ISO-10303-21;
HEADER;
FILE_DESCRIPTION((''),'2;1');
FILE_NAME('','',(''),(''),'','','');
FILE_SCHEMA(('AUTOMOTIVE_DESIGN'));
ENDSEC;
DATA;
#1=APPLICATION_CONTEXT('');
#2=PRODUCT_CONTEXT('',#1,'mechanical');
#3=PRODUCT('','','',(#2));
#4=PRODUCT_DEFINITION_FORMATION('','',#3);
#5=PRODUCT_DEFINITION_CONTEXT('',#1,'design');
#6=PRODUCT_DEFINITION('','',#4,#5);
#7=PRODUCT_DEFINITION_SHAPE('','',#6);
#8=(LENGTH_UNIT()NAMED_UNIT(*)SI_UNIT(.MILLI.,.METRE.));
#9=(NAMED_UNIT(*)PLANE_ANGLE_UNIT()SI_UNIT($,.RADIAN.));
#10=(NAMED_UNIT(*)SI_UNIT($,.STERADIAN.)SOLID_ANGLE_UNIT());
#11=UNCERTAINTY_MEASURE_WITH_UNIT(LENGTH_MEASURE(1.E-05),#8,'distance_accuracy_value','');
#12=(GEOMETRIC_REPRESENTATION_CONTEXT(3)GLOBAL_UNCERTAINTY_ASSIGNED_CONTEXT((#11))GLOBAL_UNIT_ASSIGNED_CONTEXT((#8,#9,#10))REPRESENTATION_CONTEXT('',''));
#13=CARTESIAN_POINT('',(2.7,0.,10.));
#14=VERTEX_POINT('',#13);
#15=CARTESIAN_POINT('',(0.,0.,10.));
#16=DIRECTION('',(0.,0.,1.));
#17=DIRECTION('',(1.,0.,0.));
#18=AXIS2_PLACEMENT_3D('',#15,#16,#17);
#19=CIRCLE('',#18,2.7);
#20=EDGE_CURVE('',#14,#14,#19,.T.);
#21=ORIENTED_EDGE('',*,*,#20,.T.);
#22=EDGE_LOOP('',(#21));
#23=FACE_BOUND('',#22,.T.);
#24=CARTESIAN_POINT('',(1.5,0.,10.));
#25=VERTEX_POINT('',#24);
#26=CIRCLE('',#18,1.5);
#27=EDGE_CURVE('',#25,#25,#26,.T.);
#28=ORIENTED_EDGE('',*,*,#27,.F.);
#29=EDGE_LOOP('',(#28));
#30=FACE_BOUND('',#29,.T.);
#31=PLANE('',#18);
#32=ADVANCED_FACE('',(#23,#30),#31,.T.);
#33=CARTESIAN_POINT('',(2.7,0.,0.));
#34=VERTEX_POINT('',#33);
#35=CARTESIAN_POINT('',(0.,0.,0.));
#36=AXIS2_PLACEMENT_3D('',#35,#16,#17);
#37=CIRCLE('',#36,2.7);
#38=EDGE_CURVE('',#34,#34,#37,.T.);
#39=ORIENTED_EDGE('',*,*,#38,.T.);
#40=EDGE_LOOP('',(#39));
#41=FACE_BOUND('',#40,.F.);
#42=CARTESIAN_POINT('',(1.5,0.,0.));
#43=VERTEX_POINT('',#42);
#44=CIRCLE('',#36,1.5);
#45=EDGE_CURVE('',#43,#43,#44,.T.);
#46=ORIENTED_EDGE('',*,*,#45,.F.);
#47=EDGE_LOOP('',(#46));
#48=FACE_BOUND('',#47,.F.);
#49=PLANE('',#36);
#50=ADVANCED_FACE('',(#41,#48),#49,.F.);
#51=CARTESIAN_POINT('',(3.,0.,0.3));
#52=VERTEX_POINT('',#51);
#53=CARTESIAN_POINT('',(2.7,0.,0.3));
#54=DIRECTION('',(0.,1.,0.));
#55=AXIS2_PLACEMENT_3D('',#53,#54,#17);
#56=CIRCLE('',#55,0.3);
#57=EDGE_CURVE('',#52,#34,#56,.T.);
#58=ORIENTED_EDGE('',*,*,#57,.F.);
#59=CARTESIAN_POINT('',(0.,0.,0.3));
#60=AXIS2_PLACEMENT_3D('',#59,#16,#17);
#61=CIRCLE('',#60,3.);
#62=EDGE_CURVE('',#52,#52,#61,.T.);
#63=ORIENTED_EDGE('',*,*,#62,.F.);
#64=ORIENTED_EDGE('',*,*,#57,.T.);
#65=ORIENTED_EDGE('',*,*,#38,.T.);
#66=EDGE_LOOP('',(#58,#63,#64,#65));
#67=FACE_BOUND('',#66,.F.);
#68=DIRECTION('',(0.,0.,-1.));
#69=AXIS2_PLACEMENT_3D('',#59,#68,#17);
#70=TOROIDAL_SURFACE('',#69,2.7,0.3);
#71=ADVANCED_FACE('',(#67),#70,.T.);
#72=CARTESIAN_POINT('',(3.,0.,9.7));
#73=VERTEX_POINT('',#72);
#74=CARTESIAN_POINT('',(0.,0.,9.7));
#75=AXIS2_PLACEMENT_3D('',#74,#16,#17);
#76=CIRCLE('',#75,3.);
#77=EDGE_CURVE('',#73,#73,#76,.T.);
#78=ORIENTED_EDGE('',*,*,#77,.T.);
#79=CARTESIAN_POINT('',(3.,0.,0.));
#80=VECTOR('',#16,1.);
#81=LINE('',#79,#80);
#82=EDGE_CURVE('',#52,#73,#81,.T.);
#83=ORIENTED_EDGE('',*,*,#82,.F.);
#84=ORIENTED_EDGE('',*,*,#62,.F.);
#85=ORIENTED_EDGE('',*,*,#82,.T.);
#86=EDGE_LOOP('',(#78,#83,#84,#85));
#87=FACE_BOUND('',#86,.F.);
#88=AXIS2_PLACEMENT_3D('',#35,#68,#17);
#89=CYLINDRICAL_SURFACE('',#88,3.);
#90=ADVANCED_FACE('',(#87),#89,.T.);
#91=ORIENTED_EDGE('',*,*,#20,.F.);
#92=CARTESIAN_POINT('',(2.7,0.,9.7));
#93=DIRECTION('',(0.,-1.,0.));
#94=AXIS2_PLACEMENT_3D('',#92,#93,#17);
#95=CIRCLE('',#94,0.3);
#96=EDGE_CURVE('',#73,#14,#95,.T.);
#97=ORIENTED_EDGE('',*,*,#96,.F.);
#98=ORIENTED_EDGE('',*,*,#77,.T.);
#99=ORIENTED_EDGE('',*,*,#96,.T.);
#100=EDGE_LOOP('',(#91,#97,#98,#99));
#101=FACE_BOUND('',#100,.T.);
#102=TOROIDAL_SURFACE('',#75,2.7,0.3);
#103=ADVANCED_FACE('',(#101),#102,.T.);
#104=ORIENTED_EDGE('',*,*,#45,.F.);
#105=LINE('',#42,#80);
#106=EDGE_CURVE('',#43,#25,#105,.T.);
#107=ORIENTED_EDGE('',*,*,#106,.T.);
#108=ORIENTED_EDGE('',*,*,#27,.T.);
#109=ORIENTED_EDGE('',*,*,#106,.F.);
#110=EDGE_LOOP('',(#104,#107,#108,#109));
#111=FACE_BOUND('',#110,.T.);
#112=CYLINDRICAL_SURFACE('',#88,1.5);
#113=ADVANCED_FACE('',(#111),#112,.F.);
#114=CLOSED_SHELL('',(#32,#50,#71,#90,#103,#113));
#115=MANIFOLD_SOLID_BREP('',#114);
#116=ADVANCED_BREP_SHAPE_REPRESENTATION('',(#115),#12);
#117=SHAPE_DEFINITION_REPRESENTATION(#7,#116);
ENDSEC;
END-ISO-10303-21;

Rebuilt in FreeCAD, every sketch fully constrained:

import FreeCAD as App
import Part
import Sketcher

V = App.Vector


def edges_at(feature, points):
    """Names of the edges that pass closest to the given points."""
    edges = feature.Shape.Edges
    near = lambda p: min(range(len(edges)), key=lambda i: edges[i].distToShape(Part.Vertex(*p))[0])
    return sorted({f"Edge{near(p) + 1}" for p in points})

doc = App.newDocument("Part")
body = doc.addObject("PartDesign::Body", "Body")

sketch1 = body.newObject("Sketcher::SketchObject", "Sketch")
sketch1.AttachmentSupport = (doc.getObject("XY_Plane"), [""])
sketch1.MapMode = "FlatFace"
sketch1.addGeometry([
    Part.Circle(V(0, 0, 0), V(0, 0, 1), 3),
    Part.Circle(V(0, 0, 0), V(0, 0, 1), 1.5),
], False)
sketch1.addConstraint([
    Sketcher.Constraint("Coincident", 0, 3, -1, 1),
    Sketcher.Constraint("Coincident", 1, 3, -1, 1),
    Sketcher.Constraint("Diameter", 0, 6.0),
    Sketcher.Constraint("Diameter", 1, 3.0),
])
pad1 = body.newObject("PartDesign::Pad", "Pad")
pad1.Profile = sketch1
pad1.Length = 10
doc.recompute()

fillet = body.newObject("PartDesign::Fillet", "Fillet")
fillet.Base = (pad1, edges_at(pad1, [(-3, 0, 10)]))
fillet.Radius = 0.3
doc.recompute()

fillet2 = body.newObject("PartDesign::Fillet", "Fillet001")
fillet2.Base = (fillet, edges_at(fillet, [(-3, 0, 0)]))
fillet2.Radius = 0.3

doc.recompute()
